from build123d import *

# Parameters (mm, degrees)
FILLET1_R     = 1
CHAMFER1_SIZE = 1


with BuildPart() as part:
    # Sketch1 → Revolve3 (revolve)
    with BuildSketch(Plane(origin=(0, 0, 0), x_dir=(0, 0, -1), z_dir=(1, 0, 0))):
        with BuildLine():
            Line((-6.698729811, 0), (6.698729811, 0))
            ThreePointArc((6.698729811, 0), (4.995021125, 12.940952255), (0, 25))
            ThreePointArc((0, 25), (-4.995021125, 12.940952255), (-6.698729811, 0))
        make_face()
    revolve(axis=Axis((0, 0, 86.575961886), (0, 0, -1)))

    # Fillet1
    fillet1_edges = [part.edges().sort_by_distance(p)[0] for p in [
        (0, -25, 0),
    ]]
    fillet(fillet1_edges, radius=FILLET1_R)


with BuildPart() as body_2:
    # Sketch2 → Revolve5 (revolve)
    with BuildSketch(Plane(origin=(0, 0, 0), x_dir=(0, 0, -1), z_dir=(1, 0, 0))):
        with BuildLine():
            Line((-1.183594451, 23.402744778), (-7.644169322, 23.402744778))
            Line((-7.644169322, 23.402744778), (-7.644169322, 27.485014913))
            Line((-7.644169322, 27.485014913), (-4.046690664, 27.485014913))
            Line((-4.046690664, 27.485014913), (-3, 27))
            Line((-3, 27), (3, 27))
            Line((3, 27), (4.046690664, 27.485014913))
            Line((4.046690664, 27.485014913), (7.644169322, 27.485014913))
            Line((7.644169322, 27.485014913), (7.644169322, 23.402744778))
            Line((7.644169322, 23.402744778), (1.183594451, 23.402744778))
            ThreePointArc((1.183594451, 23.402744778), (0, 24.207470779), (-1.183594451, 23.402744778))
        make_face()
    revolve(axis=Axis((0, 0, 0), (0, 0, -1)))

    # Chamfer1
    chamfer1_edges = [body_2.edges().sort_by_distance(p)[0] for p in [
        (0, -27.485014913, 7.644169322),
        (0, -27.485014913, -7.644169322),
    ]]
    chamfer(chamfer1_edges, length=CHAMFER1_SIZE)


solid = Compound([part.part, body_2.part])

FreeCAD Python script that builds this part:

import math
import FreeCAD as App
import Part
import Sketcher
from FreeCAD import Vector
Q = App.Units.Quantity


def edges_at(feature, points):
    """Names of the edges that pass closest to the given points."""
    edges = feature.Shape.Edges
    near = lambda p: min(range(len(edges)), key=lambda i: edges[i].distToShape(Part.Vertex(*p))[0])
    return sorted({f"Edge{near(p) + 1}" for p in points})

doc = App.newDocument("Part")
params = doc.addObject("Spreadsheet::Sheet", "Params")
for row, (alias, value) in enumerate([
    ("sketch1_radius", "50 mm"),
    ("revolution_angle", "360 deg"),
    ("fillet_radius", "1 mm"),
    ("sketch2_height", "6 mm"),
    ("revolution2_angle", "360 deg"),
    ("chamfer_size", "1 mm"),
], start=1):
    params.set(f"A{row}", alias)
    params.set(f"B{row}", "=" + value)
    params.setAlias(f"B{row}", alias)

body = doc.addObject("PartDesign::Body", "Body")

# Sketch on YZ plane
sketch1 = body.newObject("Sketcher::SketchObject", "Sketch")
sketch1.AttachmentSupport = (doc.getObject("YZ_Plane"), [""])
sketch1.MapMode = "FlatFace"
sketch1.addGeometry(Part.LineSegment(Vector(0, 7, 0), Vector(0, -7, 0)), False)
sketch1.addGeometry(Part.ArcOfCircle(Part.Circle(Vector(0, 43, 0), Vector(0, 0, 1), 50), math.radians(-90), math.radians(-60)), False)
sketch1.addGeometry(Part.ArcOfCircle(Part.Circle(Vector(0, -43, 0), Vector(0, 0, 1), 50), math.radians(60), math.radians(90)), False)
sketch1.addConstraint(Sketcher.Constraint("Coincident", 0, 2, 1, 1))
sketch1.addConstraint(Sketcher.Constraint("Coincident", 1, 2, 2, 1))
sketch1.addConstraint(Sketcher.Constraint("Coincident", 2, 2, 0, 1))
sketch1.addConstraint(Sketcher.Constraint("Vertical", 0))
sketch1.addConstraint(Sketcher.Constraint("Equal", 1, 2))
sketch1.addConstraint(Sketcher.Constraint("Symmetric", 1, 3, 2, 3, -1, 1))
sketch1.addConstraint(Sketcher.Constraint("PointOnObject", 1, 3, -2))
sketch1.addConstraint(Sketcher.Constraint("PointOnObject", 0, 2, -2))
sketch1.addConstraint(Sketcher.Constraint("Radius", 1, Q("50 mm")))
sketch1.addConstraint(Sketcher.Constraint("DistanceX", -1, 1, 1, 2, Q("25 mm")))
sketch1.setExpression("Constraints[8]", "Params.sketch1_radius")
revolution = body.newObject("PartDesign::Revolution", "Revolution")
revolution.Profile = sketch1
revolution.ReferenceAxis = (sketch1, ["V_Axis"])
revolution.setExpression("Angle", "Params.revolution_angle")
doc.recompute()

fillet = body.newObject("PartDesign::Fillet", "Fillet")
fillet.Base = (revolution, edges_at(revolution, [(0, -25, 0)]))
fillet.setExpression("Radius", "Params.fillet_radius")
body2 = doc.addObject("PartDesign::Body", "Body001")

# Sketch on YZ plane
sketch2 = body2.newObject("Sketcher::SketchObject", "Sketch001")
sketch2.AttachmentSupport = (doc.getObject("YZ_Plane001"), [""])
sketch2.MapMode = "FlatFace"
sketch2.addGeometry(Part.LineSegment(Vector(23.4, 7.6, 0), Vector(23.4, 1.2, 0)), False)
sketch2.addGeometry(Part.ArcOfCircle(Part.Circle(Vector(22.9, 0, 0), Vector(0, 0, 1), 1.3), math.radians(-68), math.radians(68)), False)
sketch2.addGeometry(Part.LineSegment(Vector(23.4, -1.2, 0), Vector(23.4, -7.6, 0)), False)
sketch2.addGeometry(Part.LineSegment(Vector(23.4, -7.6, 0), Vector(27.5, -7.6, 0)), False)
sketch2.addGeometry(Part.LineSegment(Vector(27.5, -7.6, 0), Vector(27.5, -4, 0)), False)
sketch2.addGeometry(Part.LineSegment(Vector(27.5, -4, 0), Vector(27, -3, 0)), False)
sketch2.addGeometry(Part.LineSegment(Vector(27, -3, 0), Vector(27, 3, 0)), False)
sketch2.addGeometry(Part.LineSegment(Vector(27, 3, 0), Vector(27.5, 4, 0)), False)
sketch2.addGeometry(Part.LineSegment(Vector(27.5, 4, 0), Vector(27.5, 7.6, 0)), False)
sketch2.addGeometry(Part.LineSegment(Vector(27.5, 7.6, 0), Vector(23.4, 7.6, 0)), False)
sketch2.addConstraint(Sketcher.Constraint("Coincident", 0, 2, 1, 2))
sketch2.addConstraint(Sketcher.Constraint("Coincident", 1, 1, 2, 1))
sketch2.addConstraint(Sketcher.Constraint("Coincident", 2, 2, 3, 1))
sketch2.addConstraint(Sketcher.Constraint("Coincident", 3, 2, 4, 1))
sketch2.addConstraint(Sketcher.Constraint("Coincident", 4, 2, 5, 1))
sketch2.addConstraint(Sketcher.Constraint("Coincident", 5, 2, 6, 1))
sketch2.addConstraint(Sketcher.Constraint("Coincident", 6, 2, 7, 1))
sketch2.addConstraint(Sketcher.Constraint("Coincident", 7, 2, 8, 1))
sketch2.addConstraint(Sketcher.Constraint("Coincident", 8, 2, 9, 1))
sketch2.addConstraint(Sketcher.Constraint("Coincident", 9, 2, 0, 1))
sketch2.addConstraint(Sketcher.Constraint("Vertical", 0))
sketch2.addConstraint(Sketcher.Constraint("Vertical", 2))
sketch2.addConstraint(Sketcher.Constraint("Horizontal", 3))
sketch2.addConstraint(Sketcher.Constraint("Vertical", 4))
sketch2.addConstraint(Sketcher.Constraint("Vertical", 6))
sketch2.addConstraint(Sketcher.Constraint("Vertical", 8))
sketch2.addConstraint(Sketcher.Constraint("Horizontal", 9))
sketch2.addConstraint(Sketcher.Constraint("Symmetric", 0, 2, 1, 1, -1))
sketch2.addConstraint(Sketcher.Constraint("Symmetric", 4, 2, 7, 2, -1))
sketch2.addConstraint(Sketcher.Constraint("Equal", 0, 2))
sketch2.addConstraint(Sketcher.Constraint("Equal", 5, 7))
sketch2.addConstraint(Sketcher.Constraint("DistanceY", 6, 1, 6, 2, Q("6 mm")))
sketch2.addConstraint(Sketcher.Constraint("DistanceX", -1, 1, 5, 2, Q("27 mm")))
sketch2.addConstraint(Sketcher.Constraint("Radius", 1, Q("1.272781 mm")))
sketch2.addConstraint(Sketcher.Constraint("DistanceX", 3, 1, 3, 2, Q("4.08227 mm")))
sketch2.addConstraint(Sketcher.Constraint("DistanceY", 4, 1, 4, 2, Q("3.597479 mm")))
sketch2.addConstraint(Sketcher.Constraint("DistanceY", 0, 2, 0, 1, Q("6.460575 mm")))
sketch2.addConstraint(Sketcher.Constraint("DistanceX", -1, 1, 1, 3, Q("22.93469 mm")))
sketch2.addConstraint(Sketcher.Constraint("DistanceY", 2, 2, -1, 1, Q("7.644169 mm")))
sketch2.setExpression("Constraints[21]", "Params.sketch2_height")
revolution2 = body2.newObject("PartDesign::Revolution", "Revolution001")
revolution2.Profile = sketch2
revolution2.ReferenceAxis = (sketch2, ["V_Axis"])
revolution2.setExpression("Angle", "Params.revolution2_angle")
doc.recompute()

chamfer = body2.newObject("PartDesign::Chamfer", "Chamfer")
chamfer.Base = (revolution2, edges_at(revolution2, [(0, -27.485, 7.644), (0, -27.485, -7.644)]))
chamfer.setExpression("Size", "Params.chamfer_size")

doc.recompute()
